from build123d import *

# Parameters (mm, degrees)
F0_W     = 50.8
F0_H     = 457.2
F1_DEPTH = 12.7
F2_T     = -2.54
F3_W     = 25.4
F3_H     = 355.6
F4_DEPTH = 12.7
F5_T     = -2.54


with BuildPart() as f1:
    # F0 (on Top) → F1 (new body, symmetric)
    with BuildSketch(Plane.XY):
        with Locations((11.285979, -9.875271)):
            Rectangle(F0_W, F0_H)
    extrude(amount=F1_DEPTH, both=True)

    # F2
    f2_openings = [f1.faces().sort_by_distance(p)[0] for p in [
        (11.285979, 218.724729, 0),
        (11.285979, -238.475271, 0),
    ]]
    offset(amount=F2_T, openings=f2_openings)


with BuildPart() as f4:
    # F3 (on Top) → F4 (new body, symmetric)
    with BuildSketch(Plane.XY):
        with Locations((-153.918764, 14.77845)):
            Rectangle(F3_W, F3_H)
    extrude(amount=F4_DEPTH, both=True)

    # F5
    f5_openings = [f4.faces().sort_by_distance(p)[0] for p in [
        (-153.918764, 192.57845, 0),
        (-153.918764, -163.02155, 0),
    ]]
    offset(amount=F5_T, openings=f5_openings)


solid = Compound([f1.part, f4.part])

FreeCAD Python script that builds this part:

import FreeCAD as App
import Part
import Sketcher
Q = App.Units.Quantity


def faces_at(feature, points):
    """Names of the faces that lie closest to the given points."""
    faces = feature.Shape.Faces
    near = lambda p: min(range(len(faces)), key=lambda i: faces[i].distToShape(Part.Vertex(*p))[0])
    return sorted({f"Face{near(p) + 1}" for p in points})

doc = App.newDocument("Part")
body = doc.addObject("PartDesign::Body", "Body")

# Sketch on XY plane
sketch1 = body.newObject("Sketcher::SketchObject", "Sketch")
sketch1.AttachmentSupport = (doc.getObject("XY_Plane"), [""])
sketch1.MapMode = "FlatFace"
sketch1.addGeometry(Part.LineSegment(App.Vector(-14.114021, 218.724729, 0), App.Vector(-14.114021, -238.475271, 0)), False)
sketch1.addGeometry(Part.LineSegment(App.Vector(-14.114021, -238.475271, 0), App.Vector(36.685979, -238.475271, 0)), False)
sketch1.addGeometry(Part.LineSegment(App.Vector(36.685979, -238.475271, 0), App.Vector(36.685979, 218.724729, 0)), False)
sketch1.addGeometry(Part.LineSegment(App.Vector(36.685979, 218.724729, 0), App.Vector(-14.114021, 218.724729, 0)), False)
sketch1.addConstraint(Sketcher.Constraint("Coincident", 0, 2, 1, 1))
sketch1.addConstraint(Sketcher.Constraint("Coincident", 1, 2, 2, 1))
sketch1.addConstraint(Sketcher.Constraint("Coincident", 2, 2, 3, 1))
sketch1.addConstraint(Sketcher.Constraint("Coincident", 3, 2, 0, 1))
sketch1.addConstraint(Sketcher.Constraint("Vertical", 0))
sketch1.addConstraint(Sketcher.Constraint("Horizontal", 1))
sketch1.addConstraint(Sketcher.Constraint("Vertical", 2))
sketch1.addConstraint(Sketcher.Constraint("Horizontal", 3))
sketch1.addConstraint(Sketcher.Constraint("DistanceX", 1, 1, 1, 2, Q("2 in")))
sketch1.addConstraint(Sketcher.Constraint("DistanceY", 0, 2, 0, 1, Q("18 in")))
sketch1.addConstraint(Sketcher.Constraint("DistanceX", 0, 2, -1, 1, Q("14.114021 mm")))
sketch1.addConstraint(Sketcher.Constraint("DistanceY", 0, 2, -1, 1, Q("238.475271 mm")))
pad1 = body.newObject("PartDesign::Pad", "Pad")
pad1.Profile = sketch1
pad1.Length = Q("1 in")
pad1.Midplane = True
doc.recompute()

thickness = body.newObject("PartDesign::Thickness", "Thickness")
thickness.Base = (pad1, faces_at(pad1, [(11.286, 218.725, 0), (11.286, -238.475, 0)]))
thickness.Value = Q("0.1 in")
thickness.Reversed = True
thickness.Join = "Arc"
body2 = doc.addObject("PartDesign::Body", "Body001")

# Sketch on XY plane
sketch2 = body2.newObject("Sketcher::SketchObject", "Sketch001")
sketch2.AttachmentSupport = (doc.getObject("XY_Plane001"), [""])
sketch2.MapMode = "FlatFace"
sketch2.addGeometry(Part.LineSegment(App.Vector(-166.618764, 192.57845, 0), App.Vector(-166.618764, -163.02155, 0)), False)
sketch2.addGeometry(Part.LineSegment(App.Vector(-166.618764, -163.02155, 0), App.Vector(-141.218764, -163.02155, 0)), False)
sketch2.addGeometry(Part.LineSegment(App.Vector(-141.218764, -163.02155, 0), App.Vector(-141.218764, 192.57845, 0)), False)
sketch2.addGeometry(Part.LineSegment(App.Vector(-141.218764, 192.57845, 0), App.Vector(-166.618764, 192.57845, 0)), False)
sketch2.addConstraint(Sketcher.Constraint("Coincident", 0, 2, 1, 1))
sketch2.addConstraint(Sketcher.Constraint("Coincident", 1, 2, 2, 1))
sketch2.addConstraint(Sketcher.Constraint("Coincident", 2, 2, 3, 1))
sketch2.addConstraint(Sketcher.Constraint("Coincident", 3, 2, 0, 1))
sketch2.addConstraint(Sketcher.Constraint("Vertical", 0))
sketch2.addConstraint(Sketcher.Constraint("Horizontal", 1))
sketch2.addConstraint(Sketcher.Constraint("Vertical", 2))
sketch2.addConstraint(Sketcher.Constraint("Horizontal", 3))
sketch2.addConstraint(Sketcher.Constraint("DistanceX", 1, 1, 1, 2, Q("1 in")))
sketch2.addConstraint(Sketcher.Constraint("DistanceY", 0, 2, 0, 1, Q("14 in")))
sketch2.addConstraint(Sketcher.Constraint("DistanceY", 0, 2, -1, 1, Q("163.02155 mm")))
sketch2.addConstraint(Sketcher.Constraint("DistanceX", 0, 2, -1, 1, Q("166.618764 mm")))
pad2 = body2.newObject("PartDesign::Pad", "Pad001")
pad2.Profile = sketch2
pad2.Length = Q("1 in")
pad2.Midplane = True
doc.recompute()

thickness2 = body2.newObject("PartDesign::Thickness", "Thickness001")
thickness2.Base = (pad2, faces_at(pad2, [(-153.919, 192.578, 0), (-153.919, -163.022, 0)]))
thickness2.Value = Q("0.1 in")
thickness2.Reversed = True
thickness2.Join = "Arc"

doc.recompute()
